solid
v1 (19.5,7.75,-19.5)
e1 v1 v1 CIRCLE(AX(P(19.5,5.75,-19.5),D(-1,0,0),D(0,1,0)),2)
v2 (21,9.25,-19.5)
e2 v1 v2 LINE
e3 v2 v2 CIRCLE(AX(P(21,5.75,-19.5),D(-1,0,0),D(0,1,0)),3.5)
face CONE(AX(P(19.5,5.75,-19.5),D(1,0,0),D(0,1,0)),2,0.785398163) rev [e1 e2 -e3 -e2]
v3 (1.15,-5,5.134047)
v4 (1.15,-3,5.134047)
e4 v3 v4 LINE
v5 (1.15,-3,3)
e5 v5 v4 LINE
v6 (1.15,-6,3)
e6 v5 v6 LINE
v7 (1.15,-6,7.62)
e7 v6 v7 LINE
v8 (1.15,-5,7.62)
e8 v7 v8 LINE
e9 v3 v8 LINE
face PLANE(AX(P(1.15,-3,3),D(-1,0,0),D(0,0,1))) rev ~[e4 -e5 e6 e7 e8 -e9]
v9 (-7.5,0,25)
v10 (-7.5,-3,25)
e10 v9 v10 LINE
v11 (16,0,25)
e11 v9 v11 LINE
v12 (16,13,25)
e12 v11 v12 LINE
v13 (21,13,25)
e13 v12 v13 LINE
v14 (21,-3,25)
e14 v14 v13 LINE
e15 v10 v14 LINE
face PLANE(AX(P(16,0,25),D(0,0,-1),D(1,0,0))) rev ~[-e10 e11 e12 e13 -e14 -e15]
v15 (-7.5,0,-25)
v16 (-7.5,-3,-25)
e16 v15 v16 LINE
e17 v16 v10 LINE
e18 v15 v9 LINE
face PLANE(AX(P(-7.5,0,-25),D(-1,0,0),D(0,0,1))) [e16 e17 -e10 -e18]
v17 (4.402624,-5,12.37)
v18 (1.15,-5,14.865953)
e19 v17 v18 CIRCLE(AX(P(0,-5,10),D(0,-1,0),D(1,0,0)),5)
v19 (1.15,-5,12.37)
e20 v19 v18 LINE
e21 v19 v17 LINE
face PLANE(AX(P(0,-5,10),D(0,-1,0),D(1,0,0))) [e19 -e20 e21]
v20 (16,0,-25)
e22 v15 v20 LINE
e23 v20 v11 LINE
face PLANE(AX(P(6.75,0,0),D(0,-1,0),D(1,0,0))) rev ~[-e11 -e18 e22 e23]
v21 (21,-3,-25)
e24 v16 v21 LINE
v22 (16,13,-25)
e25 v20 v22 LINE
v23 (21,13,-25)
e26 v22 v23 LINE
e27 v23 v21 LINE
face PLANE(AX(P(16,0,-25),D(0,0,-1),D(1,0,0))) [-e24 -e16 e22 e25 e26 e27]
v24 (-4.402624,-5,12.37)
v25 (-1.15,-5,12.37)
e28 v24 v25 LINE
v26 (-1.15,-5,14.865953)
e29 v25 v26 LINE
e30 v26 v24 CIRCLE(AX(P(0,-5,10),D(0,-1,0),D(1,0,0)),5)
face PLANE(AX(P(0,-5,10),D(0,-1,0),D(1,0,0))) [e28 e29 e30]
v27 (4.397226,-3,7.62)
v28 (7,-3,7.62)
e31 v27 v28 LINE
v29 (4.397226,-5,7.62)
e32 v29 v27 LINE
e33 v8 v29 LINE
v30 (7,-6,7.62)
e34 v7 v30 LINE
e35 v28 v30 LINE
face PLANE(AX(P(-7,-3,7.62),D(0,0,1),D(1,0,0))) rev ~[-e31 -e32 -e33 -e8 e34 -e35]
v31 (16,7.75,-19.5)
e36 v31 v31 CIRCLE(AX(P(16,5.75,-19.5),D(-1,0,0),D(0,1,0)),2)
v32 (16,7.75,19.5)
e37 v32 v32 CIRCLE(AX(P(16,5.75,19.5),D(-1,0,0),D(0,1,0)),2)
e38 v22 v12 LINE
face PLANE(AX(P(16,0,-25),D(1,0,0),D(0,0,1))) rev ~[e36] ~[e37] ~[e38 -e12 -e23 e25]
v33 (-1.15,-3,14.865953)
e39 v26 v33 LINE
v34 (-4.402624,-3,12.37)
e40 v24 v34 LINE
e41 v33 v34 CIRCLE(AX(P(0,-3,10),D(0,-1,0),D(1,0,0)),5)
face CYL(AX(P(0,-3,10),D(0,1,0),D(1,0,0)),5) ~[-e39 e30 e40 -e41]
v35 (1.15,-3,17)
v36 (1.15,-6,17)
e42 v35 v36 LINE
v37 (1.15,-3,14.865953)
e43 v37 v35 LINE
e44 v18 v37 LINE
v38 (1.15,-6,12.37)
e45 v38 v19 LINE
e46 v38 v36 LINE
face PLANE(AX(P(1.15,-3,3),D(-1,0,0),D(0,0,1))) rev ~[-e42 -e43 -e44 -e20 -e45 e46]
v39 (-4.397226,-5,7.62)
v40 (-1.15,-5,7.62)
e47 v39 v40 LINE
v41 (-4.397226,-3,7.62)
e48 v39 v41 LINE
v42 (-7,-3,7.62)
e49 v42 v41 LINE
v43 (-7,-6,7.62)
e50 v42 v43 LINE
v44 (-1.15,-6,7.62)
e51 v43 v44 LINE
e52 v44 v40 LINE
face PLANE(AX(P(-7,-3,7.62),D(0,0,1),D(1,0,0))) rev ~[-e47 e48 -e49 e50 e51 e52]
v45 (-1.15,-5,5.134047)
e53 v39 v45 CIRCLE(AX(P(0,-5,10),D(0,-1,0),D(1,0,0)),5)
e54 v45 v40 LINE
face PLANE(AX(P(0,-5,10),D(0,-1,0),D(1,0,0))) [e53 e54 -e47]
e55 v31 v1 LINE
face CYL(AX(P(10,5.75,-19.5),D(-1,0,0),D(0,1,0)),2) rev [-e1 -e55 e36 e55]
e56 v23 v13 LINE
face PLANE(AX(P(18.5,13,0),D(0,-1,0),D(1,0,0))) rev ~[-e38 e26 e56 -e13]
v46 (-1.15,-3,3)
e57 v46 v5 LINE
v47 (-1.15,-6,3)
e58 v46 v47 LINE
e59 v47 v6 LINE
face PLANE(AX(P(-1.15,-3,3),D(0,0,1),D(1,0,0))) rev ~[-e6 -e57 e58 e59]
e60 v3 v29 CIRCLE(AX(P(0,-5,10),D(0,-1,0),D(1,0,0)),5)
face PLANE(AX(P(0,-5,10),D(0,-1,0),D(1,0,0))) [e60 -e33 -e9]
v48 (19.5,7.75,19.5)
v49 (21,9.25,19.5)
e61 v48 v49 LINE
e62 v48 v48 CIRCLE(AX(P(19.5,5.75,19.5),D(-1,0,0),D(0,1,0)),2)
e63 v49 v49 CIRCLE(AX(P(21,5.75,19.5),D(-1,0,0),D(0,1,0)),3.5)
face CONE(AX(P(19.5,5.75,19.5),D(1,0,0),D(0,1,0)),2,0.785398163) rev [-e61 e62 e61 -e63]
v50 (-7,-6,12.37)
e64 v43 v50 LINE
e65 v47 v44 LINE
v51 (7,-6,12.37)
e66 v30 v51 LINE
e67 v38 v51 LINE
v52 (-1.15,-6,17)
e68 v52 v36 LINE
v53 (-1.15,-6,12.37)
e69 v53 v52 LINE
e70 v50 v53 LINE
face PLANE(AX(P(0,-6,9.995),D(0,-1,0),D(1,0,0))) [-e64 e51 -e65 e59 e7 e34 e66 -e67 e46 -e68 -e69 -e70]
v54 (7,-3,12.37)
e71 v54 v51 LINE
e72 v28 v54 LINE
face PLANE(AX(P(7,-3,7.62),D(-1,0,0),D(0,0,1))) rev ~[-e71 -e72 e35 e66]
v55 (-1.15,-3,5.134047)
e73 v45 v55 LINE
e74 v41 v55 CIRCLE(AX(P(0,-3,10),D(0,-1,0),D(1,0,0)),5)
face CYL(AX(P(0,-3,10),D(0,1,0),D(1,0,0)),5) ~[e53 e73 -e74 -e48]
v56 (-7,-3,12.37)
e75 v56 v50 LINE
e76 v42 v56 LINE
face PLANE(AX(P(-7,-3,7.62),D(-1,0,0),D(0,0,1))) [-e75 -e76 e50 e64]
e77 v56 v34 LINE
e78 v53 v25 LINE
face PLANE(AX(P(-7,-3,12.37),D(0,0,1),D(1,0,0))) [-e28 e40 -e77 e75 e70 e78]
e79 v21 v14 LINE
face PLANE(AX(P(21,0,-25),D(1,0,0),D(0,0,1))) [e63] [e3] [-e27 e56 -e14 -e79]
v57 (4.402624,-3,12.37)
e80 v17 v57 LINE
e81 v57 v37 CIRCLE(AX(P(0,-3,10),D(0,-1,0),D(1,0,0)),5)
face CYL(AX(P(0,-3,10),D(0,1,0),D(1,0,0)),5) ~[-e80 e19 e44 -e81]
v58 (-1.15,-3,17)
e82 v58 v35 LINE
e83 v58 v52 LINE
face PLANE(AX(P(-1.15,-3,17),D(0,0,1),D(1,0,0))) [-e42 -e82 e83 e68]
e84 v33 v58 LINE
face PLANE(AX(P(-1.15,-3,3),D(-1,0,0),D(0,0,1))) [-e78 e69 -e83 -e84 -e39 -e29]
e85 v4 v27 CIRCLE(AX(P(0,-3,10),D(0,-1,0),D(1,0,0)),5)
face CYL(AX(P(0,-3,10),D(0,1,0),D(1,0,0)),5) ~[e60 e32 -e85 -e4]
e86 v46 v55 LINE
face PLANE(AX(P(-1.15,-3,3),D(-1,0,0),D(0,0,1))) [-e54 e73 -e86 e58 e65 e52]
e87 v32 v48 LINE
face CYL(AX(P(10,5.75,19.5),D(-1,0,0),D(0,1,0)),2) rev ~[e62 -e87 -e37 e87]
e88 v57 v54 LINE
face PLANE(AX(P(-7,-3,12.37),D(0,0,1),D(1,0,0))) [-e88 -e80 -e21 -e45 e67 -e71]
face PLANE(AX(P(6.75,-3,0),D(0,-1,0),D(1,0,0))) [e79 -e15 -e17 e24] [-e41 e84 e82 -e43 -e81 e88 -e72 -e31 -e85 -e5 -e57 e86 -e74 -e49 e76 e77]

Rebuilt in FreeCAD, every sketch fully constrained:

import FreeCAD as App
import Part
import Sketcher

V = App.Vector
Q = App.Units.Quantity


def edges_at(feature, points):
    """Names of the edges that pass closest to the given points."""
    edges = feature.Shape.Edges
    near = lambda p: min(range(len(edges)), key=lambda i: edges[i].distToShape(Part.Vertex(*p))[0])
    return sorted({f"Edge{near(p) + 1}" for p in points})

doc = App.newDocument("Part")
body = doc.addObject("PartDesign::Body", "Body")

sketch1 = doc.addObject("Sketcher::SketchObject", "Sketch")
body.addObject(sketch1)
sketch1.AttachmentSupport = (doc.XZ_Plane, [""])
sketch1.MapMode = "FlatFace"
sketch1.AttachmentOffset = App.Placement(V(0, 0, 3), App.Rotation())
sketch1.addGeometry([
    Part.LineSegment(V(-1.1, 17, 0), V(-1.1, 3, 0)),
    Part.LineSegment(V(-1.1, 3, 0), V(1.1, 3, 0)),
    Part.LineSegment(V(1.1, 3, 0), V(1.1, 17, 0)),
    Part.LineSegment(V(1.1, 17, 0), V(-1.1, 17, 0)),
], False)
sketch1.addConstraint([
    Sketcher.Constraint("Coincident", 0, 2, 1, 1),
    Sketcher.Constraint("Coincident", 1, 2, 2, 1),
    Sketcher.Constraint("Coincident", 2, 2, 3, 1),
    Sketcher.Constraint("Coincident", 3, 2, 0, 1),
    Sketcher.Constraint("Vertical", 0),
    Sketcher.Constraint("Horizontal", 1),
    Sketcher.Constraint("Vertical", 2),
    Sketcher.Constraint("Horizontal", 3),
    Sketcher.Constraint("DistanceY", 0, 2, 0, 1, Q("14 mm")),
    Sketcher.Constraint("DistanceX", 1, 1, 1, 2, Q("2.3 mm")),
    Sketcher.Constraint("DistanceY", -1, 1, 0, 2, Q("3 mm")),
    Sketcher.Constraint("DistanceX", 0, 2, -1, 1, Q("1.15 mm")),
])
pad1 = doc.addObject("PartDesign::Pad", "Pad")
body.addObject(pad1)
pad1.Profile = sketch1
pad1.Length = 3

sketch2 = doc.addObject("Sketcher::SketchObject", "Sketch001")
body.addObject(sketch2)
sketch2.AttachmentSupport = (doc.XZ_Plane, [""])
sketch2.MapMode = "FlatFace"
sketch2.AttachmentOffset = App.Placement(V(0, 0, 3), App.Rotation())
sketch2.addGeometry([
    Part.LineSegment(V(-7, 12.4, 0), V(-7, 7.6, 0)),
    Part.LineSegment(V(-7, 7.6, 0), V(7, 7.6, 0)),
    Part.LineSegment(V(7, 7.6, 0), V(7, 12.4, 0)),
    Part.LineSegment(V(7, 12.4, 0), V(-7, 12.4, 0)),
], False)
sketch2.addConstraint([
    Sketcher.Constraint("Coincident", 0, 2, 1, 1),
    Sketcher.Constraint("Coincident", 1, 2, 2, 1),
    Sketcher.Constraint("Coincident", 2, 2, 3, 1),
    Sketcher.Constraint("Coincident", 3, 2, 0, 1),
    Sketcher.Constraint("Vertical", 0),
    Sketcher.Constraint("Horizontal", 1),
    Sketcher.Constraint("Vertical", 2),
    Sketcher.Constraint("Horizontal", 3),
    Sketcher.Constraint("DistanceX", 1, 1, 1, 2, Q("14 mm")),
    Sketcher.Constraint("DistanceX", 0, 2, -1, 1, Q("7 mm")),
    Sketcher.Constraint("DistanceY", 0, 2, 0, 1, Q("4.75 mm")),
    Sketcher.Constraint("DistanceY", -1, 1, 0, 2, Q("7.62 mm")),
])
pad2 = doc.addObject("PartDesign::Pad", "Pad001")
body.addObject(pad2)
pad2.Profile = sketch2
pad2.Length = 3

sketch3 = doc.addObject("Sketcher::SketchObject", "Sketch002")
body.addObject(sketch3)
sketch3.AttachmentSupport = (doc.XZ_Plane, [""])
sketch3.MapMode = "FlatFace"
sketch3.AttachmentOffset = App.Placement(V(0, 0, 3), App.Rotation())
sketch3.addGeometry(Part.Circle(V(0, 10, 0), V(0, 0, 1), 5), False)
sketch3.addConstraint([
    Sketcher.Constraint("PointOnObject", 0, 3, -2),
    Sketcher.Constraint("Diameter", 0, Q("10 mm")),
    Sketcher.Constraint("DistanceY", -1, 1, 0, 3, Q("10 mm")),
])
pad3 = doc.addObject("PartDesign::Pad", "Pad002")
body.addObject(pad3)
pad3.Profile = sketch3
pad3.Length = 2

sketch4 = doc.addObject("Sketcher::SketchObject", "Sketch003")
body.addObject(sketch4)
sketch4.AttachmentSupport = (doc.XZ_Plane, [""])
sketch4.MapMode = "FlatFace"
sketch4.addGeometry([
    Part.LineSegment(V(-8, 25, 0), V(-8, -25, 0)),
    Part.LineSegment(V(-8, -25, 0), V(21, -25, 0)),
    Part.LineSegment(V(21, -25, 0), V(21, 25, 0)),
    Part.LineSegment(V(21, 25, 0), V(-8, 25, 0)),
], False)
sketch4.addConstraint([
    Sketcher.Constraint("Coincident", 0, 2, 1, 1),
    Sketcher.Constraint("Coincident", 1, 2, 2, 1),
    Sketcher.Constraint("Coincident", 2, 2, 3, 1),
    Sketcher.Constraint("Coincident", 3, 2, 0, 1),
    Sketcher.Constraint("Vertical", 0),
    Sketcher.Constraint("Horizontal", 1),
    Sketcher.Constraint("Vertical", 2),
    Sketcher.Constraint("Horizontal", 3),
    Sketcher.Constraint("DistanceY", 0, 2, 0, 1, Q("50 mm")),
    Sketcher.Constraint("DistanceX", 1, 1, 1, 2, Q("28.5 mm")),
    Sketcher.Constraint("DistanceY", 0, 2, -1, 1, Q("25 mm")),
    Sketcher.Constraint("DistanceX", -1, 1, 1, 2, Q("21 mm")),
])
pad4 = doc.addObject("PartDesign::Pad", "Pad003")
body.addObject(pad4)
pad4.Profile = sketch4
pad4.Length = 3

sketch5 = doc.addObject("Sketcher::SketchObject", "Sketch004")
body.addObject(sketch5)
sketch5.AttachmentSupport = (doc.XZ_Plane, [""])
sketch5.MapMode = "FlatFace"
sketch5.addGeometry([
    Part.LineSegment(V(16, 25, 0), V(16, -25, 0)),
    Part.LineSegment(V(16, -25, 0), V(21, -25, 0)),
    Part.LineSegment(V(21, -25, 0), V(21, 25, 0)),
    Part.LineSegment(V(21, 25, 0), V(16, 25, 0)),
], False)
sketch5.addConstraint([
    Sketcher.Constraint("Coincident", 0, 2, 1, 1),
    Sketcher.Constraint("Coincident", 1, 2, 2, 1),
    Sketcher.Constraint("Coincident", 2, 2, 3, 1),
    Sketcher.Constraint("Coincident", 3, 2, 0, 1),
    Sketcher.Constraint("Vertical", 0),
    Sketcher.Constraint("Horizontal", 1),
    Sketcher.Constraint("Vertical", 2),
    Sketcher.Constraint("Horizontal", 3),
    Sketcher.Constraint("DistanceX", 1, 1, 1, 2, Q("5 mm")),
    Sketcher.Constraint("DistanceY", 0, 2, 0, 1, Q("50 mm")),
    Sketcher.Constraint("DistanceX", -1, 1, 0, 2, Q("16 mm")),
    Sketcher.Constraint("DistanceY", 0, 2, -1, 1, Q("25 mm")),
])
pad5 = doc.addObject("PartDesign::Pad", "Pad004")
body.addObject(pad5)
pad5.Profile = sketch5
pad5.Length = 13
pad5.Reversed = True

sketch6 = doc.addObject("Sketcher::SketchObject", "Sketch005")
body.addObject(sketch6)
sketch6.AttachmentSupport = (doc.YZ_Plane, [""])
sketch6.MapMode = "FlatFace"
sketch6.AttachmentOffset = App.Placement(V(0, 0, 10), App.Rotation())
sketch6.addGeometry(Part.Circle(V(5.8, -19.5, 0), V(0, 0, 1), 2), False)
sketch6.addConstraint([
    Sketcher.Constraint("Diameter", 0, Q("4 mm")),
    Sketcher.Constraint("DistanceY", 0, 3, -1, 1, Q("19.5 mm")),
    Sketcher.Constraint("DistanceX", -1, 1, 0, 3, Q("5.75 mm")),
])
pocket1 = doc.addObject("PartDesign::Pocket", "Pocket")
body.addObject(pocket1)
pocket1.Profile = sketch6
pocket1.Length = 15
pocket1.Reversed = True
doc.recompute()

mirrored = doc.addObject("PartDesign::Mirrored", "Mirrored")
body.addObject(mirrored)
mirrored.Originals = [pocket1]
mirrored.MirrorPlane = (doc.XY_Plane, [""])
body.Tip = mirrored
doc.recompute()

chamfer = doc.addObject("PartDesign::Chamfer", "Chamfer")
body.addObject(chamfer)
chamfer.Base = (mirrored, edges_at(mirrored, [(21, 3.75, -19.5), (21, 3.75, 19.5)]))
chamfer.Size = 1.5

doc.recompute()
